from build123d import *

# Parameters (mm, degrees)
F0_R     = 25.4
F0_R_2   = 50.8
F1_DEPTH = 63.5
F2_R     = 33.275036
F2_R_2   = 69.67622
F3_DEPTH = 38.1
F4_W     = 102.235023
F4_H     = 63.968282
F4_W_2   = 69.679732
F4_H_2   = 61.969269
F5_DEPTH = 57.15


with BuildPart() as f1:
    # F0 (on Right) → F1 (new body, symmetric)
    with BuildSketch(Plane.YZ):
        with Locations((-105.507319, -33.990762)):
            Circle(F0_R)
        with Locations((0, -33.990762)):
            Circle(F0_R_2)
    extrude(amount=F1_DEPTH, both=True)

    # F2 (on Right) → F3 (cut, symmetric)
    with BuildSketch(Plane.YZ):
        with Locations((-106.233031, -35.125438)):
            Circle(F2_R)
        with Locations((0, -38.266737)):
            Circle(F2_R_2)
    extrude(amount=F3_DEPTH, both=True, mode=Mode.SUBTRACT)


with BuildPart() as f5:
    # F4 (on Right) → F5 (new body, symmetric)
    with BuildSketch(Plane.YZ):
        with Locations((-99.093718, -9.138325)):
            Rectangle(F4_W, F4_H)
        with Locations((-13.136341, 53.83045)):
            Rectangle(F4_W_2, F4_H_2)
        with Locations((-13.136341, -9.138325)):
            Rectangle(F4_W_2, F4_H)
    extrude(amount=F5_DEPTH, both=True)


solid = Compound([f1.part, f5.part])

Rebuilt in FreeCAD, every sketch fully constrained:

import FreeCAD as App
import Part
import Sketcher

V = App.Vector
Q = App.Units.Quantity


def add_polygon(sketch, points):
    """Adds a closed chain of lines whose ends are joined by coincident constraints."""
    first, n = sketch.GeometryCount, len(points)
    for a, b in zip(points, points[1:] + points[:1]):
        sketch.addGeometry(Part.LineSegment(App.Vector(*a, 0), App.Vector(*b, 0)), False)
    for i in range(n):
        sketch.addConstraint(Sketcher.Constraint("Coincident", first + i, 2, first + (i + 1) % n, 1))

doc = App.newDocument("Part")
body = doc.addObject("PartDesign::Body", "Body")
body.AllowCompound = True

# Sketch on YZ plane
sketch1 = body.newObject("Sketcher::SketchObject", "Sketch")
sketch1.AttachmentSupport = (doc.getObject("YZ_Plane"), [""])
sketch1.MapMode = "FlatFace"
sketch1.addGeometry([
    Part.Circle(V(-106, -34, 0), V(0, 0, 1), 25),
    Part.Circle(V(0, -34, 0), V(0, 0, 1), 51),
], False)
sketch1.addConstraint([
    Sketcher.Constraint("PointOnObject", 1, 3, -2),
    Sketcher.Constraint("Horizontal", 0, 3, 1, 3),
    Sketcher.Constraint("Diameter", 0, Q("2 in")),
    Sketcher.Constraint("Diameter", 1, Q("4 in")),
    Sketcher.Constraint("DistanceX", 0, 3, -1, 1, 105.507319),
    Sketcher.Constraint("DistanceY", 0, 3, -1, 1, 33.990762),
])
pad1 = body.newObject("PartDesign::Pad", "Pad")
pad1.Profile = sketch1
pad1.Length = Q("5 in")
pad1.Midplane = True

# Sketch on YZ plane
sketch2 = body.newObject("Sketcher::SketchObject", "Sketch001")
sketch2.AttachmentSupport = (doc.getObject("YZ_Plane"), [""])
sketch2.MapMode = "FlatFace"
sketch2.addGeometry([
    Part.Circle(V(-106, -35, 0), V(0, 0, 1), 33),
    Part.Circle(V(0, -38, 0), V(0, 0, 1), 70),
], False)
sketch2.addConstraint([
    Sketcher.Constraint("PointOnObject", 1, 3, -2),
    Sketcher.Constraint("Diameter", 0, 66.550072),
    Sketcher.Constraint("Diameter", 1, 139.35244),
    Sketcher.Constraint("DistanceY", 1, 3, 0, 3, 3.141299),
    Sketcher.Constraint("DistanceX", 0, 3, -1, 1, 106.233031),
    Sketcher.Constraint("DistanceY", 0, 3, -1, 1, 35.125438),
])
pocket1 = body.newObject("PartDesign::Pocket", "Pocket")
pocket1.Profile = sketch2
pocket1.Length = Q("3 in")
pocket1.Midplane = True
body2 = doc.addObject("PartDesign::Body", "Body001")

# Sketch on YZ plane
sketch3 = body2.newObject("Sketcher::SketchObject", "Sketch002")
sketch3.AttachmentSupport = (doc.getObject("YZ_Plane001"), [""])
sketch3.MapMode = "FlatFace"
add_polygon(sketch3, [(-150, 23), (-150, -41), (22, -41), (22, 85), (-48, 85), (-48, 23)])  # lines 0-5
sketch3.addConstraint([
    Sketcher.Constraint("Vertical", 0),
    Sketcher.Constraint("Horizontal", 1),
    Sketcher.Constraint("Vertical", 2),
    Sketcher.Constraint("Horizontal", 3),
    Sketcher.Constraint("Vertical", 4),
    Sketcher.Constraint("Horizontal", 5),
    Sketcher.Constraint("DistanceX", 3, 2, 3, 1, 69.679732),
    Sketcher.Constraint("DistanceY", 2, 1, 2, 2, 125.937551),
    Sketcher.Constraint("DistanceY", 4, 2, 4, 1, 61.969268),
    Sketcher.Constraint("DistanceX", 1, 1, 1, 2, 171.914755),
    Sketcher.Constraint("DistanceX", 0, 2, -1, 1, 150.21123),
    Sketcher.Constraint("DistanceY", 0, 2, -1, 1, 41.122466),
])
pad2 = body2.newObject("PartDesign::Pad", "Pad001")
pad2.Profile = sketch3
pad2.Length = Q("4.5 in")
pad2.Midplane = True

doc.recompute()
